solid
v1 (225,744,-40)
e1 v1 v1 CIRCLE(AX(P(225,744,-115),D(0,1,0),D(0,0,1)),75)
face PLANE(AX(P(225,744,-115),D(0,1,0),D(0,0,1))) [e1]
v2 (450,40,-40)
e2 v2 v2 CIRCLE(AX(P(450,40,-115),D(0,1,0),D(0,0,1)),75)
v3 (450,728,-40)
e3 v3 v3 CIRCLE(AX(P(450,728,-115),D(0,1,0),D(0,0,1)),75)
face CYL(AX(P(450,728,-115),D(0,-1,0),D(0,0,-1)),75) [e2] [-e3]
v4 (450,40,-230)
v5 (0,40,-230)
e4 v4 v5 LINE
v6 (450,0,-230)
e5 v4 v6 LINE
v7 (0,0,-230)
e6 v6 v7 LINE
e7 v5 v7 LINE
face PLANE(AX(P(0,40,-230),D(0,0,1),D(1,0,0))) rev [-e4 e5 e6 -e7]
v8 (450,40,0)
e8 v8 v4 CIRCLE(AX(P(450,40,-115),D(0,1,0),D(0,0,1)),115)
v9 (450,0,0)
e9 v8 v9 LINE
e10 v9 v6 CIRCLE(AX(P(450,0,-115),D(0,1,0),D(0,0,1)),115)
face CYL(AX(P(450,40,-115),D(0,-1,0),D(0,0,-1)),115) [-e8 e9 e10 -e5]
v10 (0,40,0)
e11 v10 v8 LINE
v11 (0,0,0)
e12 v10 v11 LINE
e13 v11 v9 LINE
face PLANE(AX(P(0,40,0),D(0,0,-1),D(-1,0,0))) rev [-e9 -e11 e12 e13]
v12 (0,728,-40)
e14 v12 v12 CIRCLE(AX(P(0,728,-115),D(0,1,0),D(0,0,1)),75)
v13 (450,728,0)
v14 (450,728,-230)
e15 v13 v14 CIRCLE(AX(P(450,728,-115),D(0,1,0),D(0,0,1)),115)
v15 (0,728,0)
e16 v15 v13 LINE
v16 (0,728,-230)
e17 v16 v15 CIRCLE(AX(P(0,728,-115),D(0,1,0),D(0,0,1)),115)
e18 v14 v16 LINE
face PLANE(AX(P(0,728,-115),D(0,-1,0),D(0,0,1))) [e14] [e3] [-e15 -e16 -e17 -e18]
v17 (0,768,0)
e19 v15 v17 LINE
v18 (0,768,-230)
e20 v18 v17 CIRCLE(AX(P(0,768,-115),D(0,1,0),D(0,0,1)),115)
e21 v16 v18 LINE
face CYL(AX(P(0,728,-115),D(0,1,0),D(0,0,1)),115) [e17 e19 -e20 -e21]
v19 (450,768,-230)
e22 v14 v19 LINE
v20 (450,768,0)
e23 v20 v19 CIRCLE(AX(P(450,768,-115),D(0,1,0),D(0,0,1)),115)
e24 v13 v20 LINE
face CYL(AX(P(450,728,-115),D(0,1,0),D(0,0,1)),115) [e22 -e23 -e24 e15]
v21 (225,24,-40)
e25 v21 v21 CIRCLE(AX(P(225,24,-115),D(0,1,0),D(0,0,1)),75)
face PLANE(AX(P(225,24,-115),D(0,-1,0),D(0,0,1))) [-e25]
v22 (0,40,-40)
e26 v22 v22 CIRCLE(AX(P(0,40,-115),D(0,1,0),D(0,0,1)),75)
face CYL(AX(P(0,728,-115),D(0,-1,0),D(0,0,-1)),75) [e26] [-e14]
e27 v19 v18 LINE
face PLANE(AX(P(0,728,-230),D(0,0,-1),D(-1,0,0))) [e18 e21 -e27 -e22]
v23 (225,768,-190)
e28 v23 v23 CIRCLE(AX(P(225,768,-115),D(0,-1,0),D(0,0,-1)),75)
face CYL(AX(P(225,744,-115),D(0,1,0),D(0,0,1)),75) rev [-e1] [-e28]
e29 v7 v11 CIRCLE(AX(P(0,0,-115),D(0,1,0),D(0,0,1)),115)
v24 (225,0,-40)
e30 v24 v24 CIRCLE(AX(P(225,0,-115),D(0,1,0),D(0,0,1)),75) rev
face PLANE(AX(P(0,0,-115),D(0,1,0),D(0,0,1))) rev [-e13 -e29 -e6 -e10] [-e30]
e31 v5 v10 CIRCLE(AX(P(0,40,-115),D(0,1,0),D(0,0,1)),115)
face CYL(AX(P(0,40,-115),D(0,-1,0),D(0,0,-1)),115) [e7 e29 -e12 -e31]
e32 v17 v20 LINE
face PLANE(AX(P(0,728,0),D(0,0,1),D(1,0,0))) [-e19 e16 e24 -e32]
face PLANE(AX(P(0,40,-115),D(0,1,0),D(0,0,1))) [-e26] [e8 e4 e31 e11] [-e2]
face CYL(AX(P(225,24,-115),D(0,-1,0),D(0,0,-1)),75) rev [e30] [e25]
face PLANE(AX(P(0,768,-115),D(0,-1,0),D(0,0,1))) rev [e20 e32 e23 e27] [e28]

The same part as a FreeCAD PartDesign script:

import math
import FreeCAD as App
import Part
import Sketcher
from FreeCAD import Vector

doc = App.newDocument("Part")
body = doc.addObject("PartDesign::Body", "Body")

sketch1 = doc.addObject("Sketcher::SketchObject", "Sketch")
body.addObject(sketch1)
sketch1.AttachmentSupport = (doc.XZ_Plane, [""])
sketch1.MapMode = "FlatFace"
sketch1.addGeometry([
    Part.LineSegment(Vector(0, 0, 0), Vector(450, 0, 0)),
    Part.ArcOfCircle(Part.Circle(Vector(450, -115, 0), Vector(0, 0, 1), 115), math.radians(-90), math.radians(90)),
    Part.LineSegment(Vector(450, -230, 0), Vector(0, -230, 0)),
    Part.ArcOfCircle(Part.Circle(Vector(0, -115, 0), Vector(0, 0, 1), 115), math.radians(90), math.radians(270)),
], False)
sketch1.addConstraint([
    Sketcher.Constraint("Tangent", 0, 2, 1, 2),
    Sketcher.Constraint("Tangent", 1, 1, 2, 1),
    Sketcher.Constraint("Tangent", 2, 2, 3, 2),
    Sketcher.Constraint("Tangent", 3, 1, 0, 1),
    Sketcher.Constraint("Horizontal", 0),
    Sketcher.Constraint("Horizontal", 2),
    Sketcher.Constraint("Coincident", 3, 1, -1, 1),
    Sketcher.Constraint("Radius", 1, 115.0),
    Sketcher.Constraint("DistanceX", 0, 1, 0, 2, 450.0),
])
pad1 = doc.addObject("PartDesign::Pad", "Pad")
body.addObject(pad1)
pad1.Profile = sketch1
pad1.Length = 40
pad1.Reversed = True

sketch2 = doc.addObject("Sketcher::SketchObject", "Sketch001")
body.addObject(sketch2)
sketch2.AttachmentSupport = (doc.XZ_Plane, [""])
sketch2.MapMode = "FlatFace"
sketch2.AttachmentOffset = App.Placement(Vector(0, 0, -40), App.Rotation())
sketch2.addGeometry([
    Part.Circle(Vector(0, -115, 0), Vector(0, 0, 1), 75),
    Part.Circle(Vector(450, -115, 0), Vector(0, 0, 1), 75),
], False)
sketch2.addConstraint([
    Sketcher.Constraint("Equal", 0, 1),
    Sketcher.Constraint("PointOnObject", 0, 3, -2),
    Sketcher.Constraint("Horizontal", 0, 3, 1, 3),
    Sketcher.Constraint("Diameter", 0, 150.0),
    Sketcher.Constraint("DistanceY", 0, 3, -1, 1, 115.0),
    Sketcher.Constraint("DistanceX", -1, 1, 1, 3, 450.0),
])
pad2 = doc.addObject("PartDesign::Pad", "Pad001")
body.addObject(pad2)
pad2.Profile = sketch2
pad2.Length = 688
pad2.Reversed = True
doc.recompute()

datumplane = doc.addObject("PartDesign::Plane", "DatumPlane")
body.addObject(datumplane)
datumplane.AttachmentSupport = (doc.XZ_Plane, [""])
datumplane.MapMode = "FlatFace"
datumplane.AttachmentOffset = App.Placement(Vector(0, 0, -384), App.Rotation())
mirrored = doc.addObject("PartDesign::Mirrored", "Mirrored")
body.addObject(mirrored)
mirrored.Originals = [pad1]
mirrored.MirrorPlane = (datumplane, [""])
body.Tip = mirrored

sketch3 = doc.addObject("Sketcher::SketchObject", "Sketch002")
body.addObject(sketch3)
sketch3.AttachmentSupport = (doc.XZ_Plane, [""])
sketch3.MapMode = "FlatFace"
sketch3.AttachmentOffset = App.Placement(Vector(0, 0, -768), App.Rotation())
sketch3.addGeometry(Part.Circle(Vector(225, -115, 0), Vector(0, 0, 1), 75), False)
sketch3.addConstraint([
    Sketcher.Constraint("Diameter", 0, 150.0),
    Sketcher.Constraint("DistanceX", -1, 1, 0, 3, 225.0),
    Sketcher.Constraint("DistanceY", 0, 3, -1, 1, 115.0),
])
pad3 = doc.addObject("PartDesign::Pad", "Pad002")
body.addObject(pad3)
pad3.Profile = sketch3
pad3.Length = 1
pad3.Reversed = True
doc.recompute()

datumplane2 = doc.addObject("PartDesign::Plane", "DatumPlane001")
body.addObject(datumplane2)
datumplane2.AttachmentSupport = (doc.XZ_Plane, [""])
datumplane2.MapMode = "FlatFace"
datumplane2.AttachmentOffset = App.Placement(Vector(0, 0, -384), App.Rotation())
mirrored2 = doc.addObject("PartDesign::Mirrored", "Mirrored001")
body.addObject(mirrored2)
mirrored2.Originals = [pad3]
mirrored2.MirrorPlane = (datumplane2, [""])
body.Tip = mirrored2

sketch4 = doc.addObject("Sketcher::SketchObject", "Sketch003")
body.addObject(sketch4)
sketch4.AttachmentSupport = (doc.XZ_Plane, [""])
sketch4.MapMode = "FlatFace"
sketch4.AttachmentOffset = App.Placement(Vector(0, 0, -769), App.Rotation())
sketch4.addGeometry(Part.Circle(Vector(225, -115, 0), Vector(0, 0, 1), 75), False)
sketch4.addConstraint([
    Sketcher.Constraint("Diameter", 0, 150.0),
    Sketcher.Constraint("DistanceX", -1, 1, 0, 3, 225.0),
    Sketcher.Constraint("DistanceY", 0, 3, -1, 1, 115.0),
])
pocket1 = doc.addObject("PartDesign::Pocket", "Pocket")
body.addObject(pocket1)
pocket1.Profile = sketch4
pocket1.Length = 25
pocket1.Reversed = True
doc.recompute()

datumplane3 = doc.addObject("PartDesign::Plane", "DatumPlane002")
body.addObject(datumplane3)
datumplane3.AttachmentSupport = (doc.XZ_Plane, [""])
datumplane3.MapMode = "FlatFace"
datumplane3.AttachmentOffset = App.Placement(Vector(0, 0, -384), App.Rotation())
mirrored3 = doc.addObject("PartDesign::Mirrored", "Mirrored002")
body.addObject(mirrored3)
mirrored3.Originals = [pocket1]
mirrored3.MirrorPlane = (datumplane3, [""])
body.Tip = mirrored3

doc.recompute()
